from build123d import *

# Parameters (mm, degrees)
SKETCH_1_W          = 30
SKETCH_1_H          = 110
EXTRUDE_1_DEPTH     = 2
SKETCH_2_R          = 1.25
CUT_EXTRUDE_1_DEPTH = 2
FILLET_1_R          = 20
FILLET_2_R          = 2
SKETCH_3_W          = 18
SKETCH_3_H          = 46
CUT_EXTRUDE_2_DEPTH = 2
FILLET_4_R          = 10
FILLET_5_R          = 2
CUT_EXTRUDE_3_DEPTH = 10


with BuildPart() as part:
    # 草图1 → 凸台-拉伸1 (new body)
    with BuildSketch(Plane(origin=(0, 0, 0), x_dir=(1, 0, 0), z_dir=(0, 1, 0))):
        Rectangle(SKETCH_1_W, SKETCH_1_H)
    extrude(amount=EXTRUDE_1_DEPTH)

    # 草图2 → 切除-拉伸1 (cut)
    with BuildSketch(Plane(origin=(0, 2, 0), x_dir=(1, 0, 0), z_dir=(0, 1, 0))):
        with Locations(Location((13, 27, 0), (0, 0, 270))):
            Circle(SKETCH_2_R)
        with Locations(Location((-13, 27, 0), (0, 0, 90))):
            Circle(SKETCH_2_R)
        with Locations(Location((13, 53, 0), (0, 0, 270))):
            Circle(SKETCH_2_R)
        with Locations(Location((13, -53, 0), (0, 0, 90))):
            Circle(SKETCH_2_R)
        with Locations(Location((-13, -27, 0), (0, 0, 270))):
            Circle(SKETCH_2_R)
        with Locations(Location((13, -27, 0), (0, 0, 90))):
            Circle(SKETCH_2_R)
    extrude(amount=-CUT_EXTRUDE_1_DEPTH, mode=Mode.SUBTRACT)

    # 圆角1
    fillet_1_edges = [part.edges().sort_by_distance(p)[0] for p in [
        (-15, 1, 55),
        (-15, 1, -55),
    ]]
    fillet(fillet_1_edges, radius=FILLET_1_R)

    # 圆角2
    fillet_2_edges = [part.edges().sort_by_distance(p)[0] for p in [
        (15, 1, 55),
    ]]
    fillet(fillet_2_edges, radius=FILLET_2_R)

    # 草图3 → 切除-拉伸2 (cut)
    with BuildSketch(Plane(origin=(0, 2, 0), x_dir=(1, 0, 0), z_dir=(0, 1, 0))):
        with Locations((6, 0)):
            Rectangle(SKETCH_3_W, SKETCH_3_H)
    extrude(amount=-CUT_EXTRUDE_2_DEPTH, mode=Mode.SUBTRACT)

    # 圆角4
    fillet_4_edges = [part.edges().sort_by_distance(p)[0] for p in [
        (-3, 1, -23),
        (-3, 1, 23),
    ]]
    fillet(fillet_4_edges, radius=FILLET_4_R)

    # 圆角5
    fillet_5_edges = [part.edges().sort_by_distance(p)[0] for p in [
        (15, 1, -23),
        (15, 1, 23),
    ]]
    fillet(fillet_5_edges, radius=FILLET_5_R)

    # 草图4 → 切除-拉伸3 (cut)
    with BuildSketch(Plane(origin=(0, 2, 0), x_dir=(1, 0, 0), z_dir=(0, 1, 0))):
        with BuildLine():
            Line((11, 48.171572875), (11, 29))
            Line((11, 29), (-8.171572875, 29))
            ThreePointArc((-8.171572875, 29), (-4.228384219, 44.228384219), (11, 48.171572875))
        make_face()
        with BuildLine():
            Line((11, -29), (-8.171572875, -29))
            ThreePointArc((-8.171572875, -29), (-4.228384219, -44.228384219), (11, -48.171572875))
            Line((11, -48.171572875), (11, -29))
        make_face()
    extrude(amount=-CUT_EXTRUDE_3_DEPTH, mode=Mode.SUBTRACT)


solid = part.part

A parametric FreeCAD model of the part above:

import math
import FreeCAD as App
import Part
import Sketcher

V = App.Vector


def edges_at(feature, points):
    """Names of the edges that pass closest to the given points."""
    edges = feature.Shape.Edges
    near = lambda p: min(range(len(edges)), key=lambda i: edges[i].distToShape(Part.Vertex(*p))[0])
    return sorted({f"Edge{near(p) + 1}" for p in points})

doc = App.newDocument("Part")
body = doc.addObject("PartDesign::Body", "Body")

sketch1 = body.newObject("Sketcher::SketchObject", "Sketch")
sketch1.AttachmentSupport = (doc.getObject("XZ_Plane"), [""])
sketch1.MapMode = "FlatFace"
sketch1.addGeometry(Part.LineSegment(V(-15, -55, 0), V(-15, 55, 0)), False)
sketch1.addGeometry(Part.LineSegment(V(-15, 55, 0), V(15, 55, 0)), False)
sketch1.addGeometry(Part.LineSegment(V(15, 55, 0), V(15, -55, 0)), False)
sketch1.addGeometry(Part.LineSegment(V(15, -55, 0), V(-15, -55, 0)), False)
sketch1.addConstraint(Sketcher.Constraint("Coincident", 0, 2, 1, 1))
sketch1.addConstraint(Sketcher.Constraint("Coincident", 1, 2, 2, 1))
sketch1.addConstraint(Sketcher.Constraint("Coincident", 2, 2, 3, 1))
sketch1.addConstraint(Sketcher.Constraint("Coincident", 3, 2, 0, 1))
sketch1.addConstraint(Sketcher.Constraint("Vertical", 0))
sketch1.addConstraint(Sketcher.Constraint("Horizontal", 1))
sketch1.addConstraint(Sketcher.Constraint("Vertical", 2))
sketch1.addConstraint(Sketcher.Constraint("Horizontal", 3))
sketch1.addConstraint(Sketcher.Constraint("Symmetric", 0, 2, 2, 2, -1, 1))
sketch1.addConstraint(Sketcher.Constraint("DistanceX", 1, 1, 1, 2, 30.0))
sketch1.addConstraint(Sketcher.Constraint("DistanceY", 0, 1, 0, 2, 110.0))
pad1 = body.newObject("PartDesign::Pad", "Pad")
pad1.Profile = sketch1
pad1.Length = 2
pad1.Reversed = True

sketch2 = body.newObject("Sketcher::SketchObject", "Sketch001")
sketch2.AttachmentSupport = (doc.getObject("XZ_Plane"), [""])
sketch2.MapMode = "FlatFace"
sketch2.AttachmentOffset = App.Placement(V(0, 0, -2), App.Rotation())
sketch2.addGeometry(Part.Circle(V(13, -27, 0), V(0, 0, 1), 1.2), False)
sketch2.addGeometry(Part.Circle(V(-13, -27, 0), V(0, 0, 1), 1.2), False)
sketch2.addGeometry(Part.Circle(V(13, -53, 0), V(0, 0, 1), 1.2), False)
sketch2.addGeometry(Part.Circle(V(13, 53, 0), V(0, 0, 1), 1.2), False)
sketch2.addGeometry(Part.Circle(V(-13, 27, 0), V(0, 0, 1), 1.2), False)
sketch2.addGeometry(Part.Circle(V(13, 27, 0), V(0, 0, 1), 1.2), False)
sketch2.addConstraint(Sketcher.Constraint("Equal", 0, 1))
sketch2.addConstraint(Sketcher.Constraint("Equal", 1, 2))
sketch2.addConstraint(Sketcher.Constraint("Equal", 2, 3))
sketch2.addConstraint(Sketcher.Constraint("Equal", 3, 4))
sketch2.addConstraint(Sketcher.Constraint("Equal", 4, 5))
sketch2.addConstraint(Sketcher.Constraint("Symmetric", 0, 3, 4, 3, -1, 1))
sketch2.addConstraint(Sketcher.Constraint("Symmetric", 1, 3, 5, 3, -1, 1))
sketch2.addConstraint(Sketcher.Constraint("Symmetric", 0, 3, 1, 3, -2))
sketch2.addConstraint(Sketcher.Constraint("Symmetric", 2, 3, 3, 3, -1))
sketch2.addConstraint(Sketcher.Constraint("Vertical", 0, 3, 2, 3))
sketch2.addConstraint(Sketcher.Constraint("Diameter", 0, 2.5))
sketch2.addConstraint(Sketcher.Constraint("DistanceX", -1, 1, 0, 3, 13.0))
sketch2.addConstraint(Sketcher.Constraint("DistanceY", 0, 3, -1, 1, 27.0))
sketch2.addConstraint(Sketcher.Constraint("DistanceY", 2, 3, -1, 1, 53.0))
pocket1 = body.newObject("PartDesign::Pocket", "Pocket")
pocket1.Profile = sketch2
pocket1.Length = 2
pocket1.Reversed = True
doc.recompute()

fillet = body.newObject("PartDesign::Fillet", "Fillet")
fillet.Base = (pocket1, edges_at(pocket1, [(-15, 1, 55), (-15, 1, -55)]))
fillet.Radius = 20
doc.recompute()

fillet2 = body.newObject("PartDesign::Fillet", "Fillet001")
fillet2.Base = (fillet, edges_at(fillet, [(15, 1, 55)]))
fillet2.Radius = 2

sketch3 = body.newObject("Sketcher::SketchObject", "Sketch002")
sketch3.AttachmentSupport = (doc.getObject("XZ_Plane"), [""])
sketch3.MapMode = "FlatFace"
sketch3.AttachmentOffset = App.Placement(V(0, 0, -2), App.Rotation())
sketch3.addGeometry(Part.LineSegment(V(-3, -23, 0), V(-3, 23, 0)), False)
sketch3.addGeometry(Part.LineSegment(V(-3, 23, 0), V(15, 23, 0)), False)
sketch3.addGeometry(Part.LineSegment(V(15, 23, 0), V(15, -23, 0)), False)
sketch3.addGeometry(Part.LineSegment(V(15, -23, 0), V(-3, -23, 0)), False)
sketch3.addConstraint(Sketcher.Constraint("Coincident", 0, 2, 1, 1))
sketch3.addConstraint(Sketcher.Constraint("Coincident", 1, 2, 2, 1))
sketch3.addConstraint(Sketcher.Constraint("Coincident", 2, 2, 3, 1))
sketch3.addConstraint(Sketcher.Constraint("Coincident", 3, 2, 0, 1))
sketch3.addConstraint(Sketcher.Constraint("Vertical", 0))
sketch3.addConstraint(Sketcher.Constraint("Horizontal", 1))
sketch3.addConstraint(Sketcher.Constraint("Vertical", 2))
sketch3.addConstraint(Sketcher.Constraint("Horizontal", 3))
sketch3.addConstraint(Sketcher.Constraint("DistanceX", 1, 1, 1, 2, 18.0))
sketch3.addConstraint(Sketcher.Constraint("DistanceY", 0, 1, 0, 2, 46.0))
sketch3.addConstraint(Sketcher.Constraint("DistanceX", 0, 2, -1, 1, 3.0))
sketch3.addConstraint(Sketcher.Constraint("DistanceY", -1, 1, 0, 2, 23.0))
pocket2 = body.newObject("PartDesign::Pocket", "Pocket001")
pocket2.Profile = sketch3
pocket2.Length = 2
pocket2.Reversed = True
doc.recompute()

fillet3 = body.newObject("PartDesign::Fillet", "Fillet002")
fillet3.Base = (pocket2, edges_at(pocket2, [(-3, 1, -23), (-3, 1, 23)]))
fillet3.Radius = 10
doc.recompute()

fillet4 = body.newObject("PartDesign::Fillet", "Fillet003")
fillet4.Base = (fillet3, edges_at(fillet3, [(15, 1, -23), (15, 1, 23)]))
fillet4.Radius = 2

sketch4 = body.newObject("Sketcher::SketchObject", "Sketch003")
sketch4.AttachmentSupport = (doc.getObject("XZ_Plane"), [""])
sketch4.MapMode = "FlatFace"
sketch4.AttachmentOffset = App.Placement(V(0, 0, -2), App.Rotation())
sketch4.addGeometry(Part.LineSegment(V(11, -29, 0), V(11, -48, 0)), False)
sketch4.addGeometry(Part.ArcOfCircle(Part.Circle(V(7, -33, 0), V(0, 0, 1), 16), math.radians(164), math.radians(286)), False)
sketch4.addGeometry(Part.LineSegment(V(-8, -29, 0), V(11, -29, 0)), False)
sketch4.addGeometry(Part.LineSegment(V(11, 29, 0), V(-8, 29, 0)), False)
sketch4.addGeometry(Part.ArcOfCircle(Part.Circle(V(7, 33, 0), V(0, 0, 1), 16), math.radians(74), math.radians(196)), False)
sketch4.addGeometry(Part.LineSegment(V(11, 48, 0), V(11, 29, 0)), False)
sketch4.addConstraint(Sketcher.Constraint("Coincident", 0, 2, 1, 2))
sketch4.addConstraint(Sketcher.Constraint("Coincident", 1, 1, 2, 1))
sketch4.addConstraint(Sketcher.Constraint("Coincident", 2, 2, 0, 1))
sketch4.addConstraint(Sketcher.Constraint("Coincident", 3, 2, 4, 2))
sketch4.addConstraint(Sketcher.Constraint("Coincident", 4, 1, 5, 1))
sketch4.addConstraint(Sketcher.Constraint("Coincident", 5, 2, 3, 1))
sketch4.addConstraint(Sketcher.Constraint("Vertical", 0))
sketch4.addConstraint(Sketcher.Constraint("Horizontal", 2))
sketch4.addConstraint(Sketcher.Constraint("Horizontal", 3))
sketch4.addConstraint(Sketcher.Constraint("Vertical", 5))
sketch4.addConstraint(Sketcher.Constraint("Equal", 1, 4))
sketch4.addConstraint(Sketcher.Constraint("Symmetric", 1, 3, 4, 3, -1))
sketch4.addConstraint(Sketcher.Constraint("Symmetric", 2, 2, 5, 2, -1))
sketch4.addConstraint(Sketcher.Constraint("Equal", 3, 0))
sketch4.addConstraint(Sketcher.Constraint("DistanceX", -1, 1, 0, 2, 11.0))
sketch4.addConstraint(Sketcher.Constraint("DistanceY", 1, 1, -1, 1, 29.0))
sketch4.addConstraint(Sketcher.Constraint("Radius", 1, 15.504852))
sketch4.addConstraint(Sketcher.Constraint("DistanceX", -1, 1, 1, 3, 6.735202))
pocket3 = body.newObject("PartDesign::Pocket", "Pocket002")
pocket3.Profile = sketch4
pocket3.Length = 10
pocket3.Reversed = True

doc.recompute()
